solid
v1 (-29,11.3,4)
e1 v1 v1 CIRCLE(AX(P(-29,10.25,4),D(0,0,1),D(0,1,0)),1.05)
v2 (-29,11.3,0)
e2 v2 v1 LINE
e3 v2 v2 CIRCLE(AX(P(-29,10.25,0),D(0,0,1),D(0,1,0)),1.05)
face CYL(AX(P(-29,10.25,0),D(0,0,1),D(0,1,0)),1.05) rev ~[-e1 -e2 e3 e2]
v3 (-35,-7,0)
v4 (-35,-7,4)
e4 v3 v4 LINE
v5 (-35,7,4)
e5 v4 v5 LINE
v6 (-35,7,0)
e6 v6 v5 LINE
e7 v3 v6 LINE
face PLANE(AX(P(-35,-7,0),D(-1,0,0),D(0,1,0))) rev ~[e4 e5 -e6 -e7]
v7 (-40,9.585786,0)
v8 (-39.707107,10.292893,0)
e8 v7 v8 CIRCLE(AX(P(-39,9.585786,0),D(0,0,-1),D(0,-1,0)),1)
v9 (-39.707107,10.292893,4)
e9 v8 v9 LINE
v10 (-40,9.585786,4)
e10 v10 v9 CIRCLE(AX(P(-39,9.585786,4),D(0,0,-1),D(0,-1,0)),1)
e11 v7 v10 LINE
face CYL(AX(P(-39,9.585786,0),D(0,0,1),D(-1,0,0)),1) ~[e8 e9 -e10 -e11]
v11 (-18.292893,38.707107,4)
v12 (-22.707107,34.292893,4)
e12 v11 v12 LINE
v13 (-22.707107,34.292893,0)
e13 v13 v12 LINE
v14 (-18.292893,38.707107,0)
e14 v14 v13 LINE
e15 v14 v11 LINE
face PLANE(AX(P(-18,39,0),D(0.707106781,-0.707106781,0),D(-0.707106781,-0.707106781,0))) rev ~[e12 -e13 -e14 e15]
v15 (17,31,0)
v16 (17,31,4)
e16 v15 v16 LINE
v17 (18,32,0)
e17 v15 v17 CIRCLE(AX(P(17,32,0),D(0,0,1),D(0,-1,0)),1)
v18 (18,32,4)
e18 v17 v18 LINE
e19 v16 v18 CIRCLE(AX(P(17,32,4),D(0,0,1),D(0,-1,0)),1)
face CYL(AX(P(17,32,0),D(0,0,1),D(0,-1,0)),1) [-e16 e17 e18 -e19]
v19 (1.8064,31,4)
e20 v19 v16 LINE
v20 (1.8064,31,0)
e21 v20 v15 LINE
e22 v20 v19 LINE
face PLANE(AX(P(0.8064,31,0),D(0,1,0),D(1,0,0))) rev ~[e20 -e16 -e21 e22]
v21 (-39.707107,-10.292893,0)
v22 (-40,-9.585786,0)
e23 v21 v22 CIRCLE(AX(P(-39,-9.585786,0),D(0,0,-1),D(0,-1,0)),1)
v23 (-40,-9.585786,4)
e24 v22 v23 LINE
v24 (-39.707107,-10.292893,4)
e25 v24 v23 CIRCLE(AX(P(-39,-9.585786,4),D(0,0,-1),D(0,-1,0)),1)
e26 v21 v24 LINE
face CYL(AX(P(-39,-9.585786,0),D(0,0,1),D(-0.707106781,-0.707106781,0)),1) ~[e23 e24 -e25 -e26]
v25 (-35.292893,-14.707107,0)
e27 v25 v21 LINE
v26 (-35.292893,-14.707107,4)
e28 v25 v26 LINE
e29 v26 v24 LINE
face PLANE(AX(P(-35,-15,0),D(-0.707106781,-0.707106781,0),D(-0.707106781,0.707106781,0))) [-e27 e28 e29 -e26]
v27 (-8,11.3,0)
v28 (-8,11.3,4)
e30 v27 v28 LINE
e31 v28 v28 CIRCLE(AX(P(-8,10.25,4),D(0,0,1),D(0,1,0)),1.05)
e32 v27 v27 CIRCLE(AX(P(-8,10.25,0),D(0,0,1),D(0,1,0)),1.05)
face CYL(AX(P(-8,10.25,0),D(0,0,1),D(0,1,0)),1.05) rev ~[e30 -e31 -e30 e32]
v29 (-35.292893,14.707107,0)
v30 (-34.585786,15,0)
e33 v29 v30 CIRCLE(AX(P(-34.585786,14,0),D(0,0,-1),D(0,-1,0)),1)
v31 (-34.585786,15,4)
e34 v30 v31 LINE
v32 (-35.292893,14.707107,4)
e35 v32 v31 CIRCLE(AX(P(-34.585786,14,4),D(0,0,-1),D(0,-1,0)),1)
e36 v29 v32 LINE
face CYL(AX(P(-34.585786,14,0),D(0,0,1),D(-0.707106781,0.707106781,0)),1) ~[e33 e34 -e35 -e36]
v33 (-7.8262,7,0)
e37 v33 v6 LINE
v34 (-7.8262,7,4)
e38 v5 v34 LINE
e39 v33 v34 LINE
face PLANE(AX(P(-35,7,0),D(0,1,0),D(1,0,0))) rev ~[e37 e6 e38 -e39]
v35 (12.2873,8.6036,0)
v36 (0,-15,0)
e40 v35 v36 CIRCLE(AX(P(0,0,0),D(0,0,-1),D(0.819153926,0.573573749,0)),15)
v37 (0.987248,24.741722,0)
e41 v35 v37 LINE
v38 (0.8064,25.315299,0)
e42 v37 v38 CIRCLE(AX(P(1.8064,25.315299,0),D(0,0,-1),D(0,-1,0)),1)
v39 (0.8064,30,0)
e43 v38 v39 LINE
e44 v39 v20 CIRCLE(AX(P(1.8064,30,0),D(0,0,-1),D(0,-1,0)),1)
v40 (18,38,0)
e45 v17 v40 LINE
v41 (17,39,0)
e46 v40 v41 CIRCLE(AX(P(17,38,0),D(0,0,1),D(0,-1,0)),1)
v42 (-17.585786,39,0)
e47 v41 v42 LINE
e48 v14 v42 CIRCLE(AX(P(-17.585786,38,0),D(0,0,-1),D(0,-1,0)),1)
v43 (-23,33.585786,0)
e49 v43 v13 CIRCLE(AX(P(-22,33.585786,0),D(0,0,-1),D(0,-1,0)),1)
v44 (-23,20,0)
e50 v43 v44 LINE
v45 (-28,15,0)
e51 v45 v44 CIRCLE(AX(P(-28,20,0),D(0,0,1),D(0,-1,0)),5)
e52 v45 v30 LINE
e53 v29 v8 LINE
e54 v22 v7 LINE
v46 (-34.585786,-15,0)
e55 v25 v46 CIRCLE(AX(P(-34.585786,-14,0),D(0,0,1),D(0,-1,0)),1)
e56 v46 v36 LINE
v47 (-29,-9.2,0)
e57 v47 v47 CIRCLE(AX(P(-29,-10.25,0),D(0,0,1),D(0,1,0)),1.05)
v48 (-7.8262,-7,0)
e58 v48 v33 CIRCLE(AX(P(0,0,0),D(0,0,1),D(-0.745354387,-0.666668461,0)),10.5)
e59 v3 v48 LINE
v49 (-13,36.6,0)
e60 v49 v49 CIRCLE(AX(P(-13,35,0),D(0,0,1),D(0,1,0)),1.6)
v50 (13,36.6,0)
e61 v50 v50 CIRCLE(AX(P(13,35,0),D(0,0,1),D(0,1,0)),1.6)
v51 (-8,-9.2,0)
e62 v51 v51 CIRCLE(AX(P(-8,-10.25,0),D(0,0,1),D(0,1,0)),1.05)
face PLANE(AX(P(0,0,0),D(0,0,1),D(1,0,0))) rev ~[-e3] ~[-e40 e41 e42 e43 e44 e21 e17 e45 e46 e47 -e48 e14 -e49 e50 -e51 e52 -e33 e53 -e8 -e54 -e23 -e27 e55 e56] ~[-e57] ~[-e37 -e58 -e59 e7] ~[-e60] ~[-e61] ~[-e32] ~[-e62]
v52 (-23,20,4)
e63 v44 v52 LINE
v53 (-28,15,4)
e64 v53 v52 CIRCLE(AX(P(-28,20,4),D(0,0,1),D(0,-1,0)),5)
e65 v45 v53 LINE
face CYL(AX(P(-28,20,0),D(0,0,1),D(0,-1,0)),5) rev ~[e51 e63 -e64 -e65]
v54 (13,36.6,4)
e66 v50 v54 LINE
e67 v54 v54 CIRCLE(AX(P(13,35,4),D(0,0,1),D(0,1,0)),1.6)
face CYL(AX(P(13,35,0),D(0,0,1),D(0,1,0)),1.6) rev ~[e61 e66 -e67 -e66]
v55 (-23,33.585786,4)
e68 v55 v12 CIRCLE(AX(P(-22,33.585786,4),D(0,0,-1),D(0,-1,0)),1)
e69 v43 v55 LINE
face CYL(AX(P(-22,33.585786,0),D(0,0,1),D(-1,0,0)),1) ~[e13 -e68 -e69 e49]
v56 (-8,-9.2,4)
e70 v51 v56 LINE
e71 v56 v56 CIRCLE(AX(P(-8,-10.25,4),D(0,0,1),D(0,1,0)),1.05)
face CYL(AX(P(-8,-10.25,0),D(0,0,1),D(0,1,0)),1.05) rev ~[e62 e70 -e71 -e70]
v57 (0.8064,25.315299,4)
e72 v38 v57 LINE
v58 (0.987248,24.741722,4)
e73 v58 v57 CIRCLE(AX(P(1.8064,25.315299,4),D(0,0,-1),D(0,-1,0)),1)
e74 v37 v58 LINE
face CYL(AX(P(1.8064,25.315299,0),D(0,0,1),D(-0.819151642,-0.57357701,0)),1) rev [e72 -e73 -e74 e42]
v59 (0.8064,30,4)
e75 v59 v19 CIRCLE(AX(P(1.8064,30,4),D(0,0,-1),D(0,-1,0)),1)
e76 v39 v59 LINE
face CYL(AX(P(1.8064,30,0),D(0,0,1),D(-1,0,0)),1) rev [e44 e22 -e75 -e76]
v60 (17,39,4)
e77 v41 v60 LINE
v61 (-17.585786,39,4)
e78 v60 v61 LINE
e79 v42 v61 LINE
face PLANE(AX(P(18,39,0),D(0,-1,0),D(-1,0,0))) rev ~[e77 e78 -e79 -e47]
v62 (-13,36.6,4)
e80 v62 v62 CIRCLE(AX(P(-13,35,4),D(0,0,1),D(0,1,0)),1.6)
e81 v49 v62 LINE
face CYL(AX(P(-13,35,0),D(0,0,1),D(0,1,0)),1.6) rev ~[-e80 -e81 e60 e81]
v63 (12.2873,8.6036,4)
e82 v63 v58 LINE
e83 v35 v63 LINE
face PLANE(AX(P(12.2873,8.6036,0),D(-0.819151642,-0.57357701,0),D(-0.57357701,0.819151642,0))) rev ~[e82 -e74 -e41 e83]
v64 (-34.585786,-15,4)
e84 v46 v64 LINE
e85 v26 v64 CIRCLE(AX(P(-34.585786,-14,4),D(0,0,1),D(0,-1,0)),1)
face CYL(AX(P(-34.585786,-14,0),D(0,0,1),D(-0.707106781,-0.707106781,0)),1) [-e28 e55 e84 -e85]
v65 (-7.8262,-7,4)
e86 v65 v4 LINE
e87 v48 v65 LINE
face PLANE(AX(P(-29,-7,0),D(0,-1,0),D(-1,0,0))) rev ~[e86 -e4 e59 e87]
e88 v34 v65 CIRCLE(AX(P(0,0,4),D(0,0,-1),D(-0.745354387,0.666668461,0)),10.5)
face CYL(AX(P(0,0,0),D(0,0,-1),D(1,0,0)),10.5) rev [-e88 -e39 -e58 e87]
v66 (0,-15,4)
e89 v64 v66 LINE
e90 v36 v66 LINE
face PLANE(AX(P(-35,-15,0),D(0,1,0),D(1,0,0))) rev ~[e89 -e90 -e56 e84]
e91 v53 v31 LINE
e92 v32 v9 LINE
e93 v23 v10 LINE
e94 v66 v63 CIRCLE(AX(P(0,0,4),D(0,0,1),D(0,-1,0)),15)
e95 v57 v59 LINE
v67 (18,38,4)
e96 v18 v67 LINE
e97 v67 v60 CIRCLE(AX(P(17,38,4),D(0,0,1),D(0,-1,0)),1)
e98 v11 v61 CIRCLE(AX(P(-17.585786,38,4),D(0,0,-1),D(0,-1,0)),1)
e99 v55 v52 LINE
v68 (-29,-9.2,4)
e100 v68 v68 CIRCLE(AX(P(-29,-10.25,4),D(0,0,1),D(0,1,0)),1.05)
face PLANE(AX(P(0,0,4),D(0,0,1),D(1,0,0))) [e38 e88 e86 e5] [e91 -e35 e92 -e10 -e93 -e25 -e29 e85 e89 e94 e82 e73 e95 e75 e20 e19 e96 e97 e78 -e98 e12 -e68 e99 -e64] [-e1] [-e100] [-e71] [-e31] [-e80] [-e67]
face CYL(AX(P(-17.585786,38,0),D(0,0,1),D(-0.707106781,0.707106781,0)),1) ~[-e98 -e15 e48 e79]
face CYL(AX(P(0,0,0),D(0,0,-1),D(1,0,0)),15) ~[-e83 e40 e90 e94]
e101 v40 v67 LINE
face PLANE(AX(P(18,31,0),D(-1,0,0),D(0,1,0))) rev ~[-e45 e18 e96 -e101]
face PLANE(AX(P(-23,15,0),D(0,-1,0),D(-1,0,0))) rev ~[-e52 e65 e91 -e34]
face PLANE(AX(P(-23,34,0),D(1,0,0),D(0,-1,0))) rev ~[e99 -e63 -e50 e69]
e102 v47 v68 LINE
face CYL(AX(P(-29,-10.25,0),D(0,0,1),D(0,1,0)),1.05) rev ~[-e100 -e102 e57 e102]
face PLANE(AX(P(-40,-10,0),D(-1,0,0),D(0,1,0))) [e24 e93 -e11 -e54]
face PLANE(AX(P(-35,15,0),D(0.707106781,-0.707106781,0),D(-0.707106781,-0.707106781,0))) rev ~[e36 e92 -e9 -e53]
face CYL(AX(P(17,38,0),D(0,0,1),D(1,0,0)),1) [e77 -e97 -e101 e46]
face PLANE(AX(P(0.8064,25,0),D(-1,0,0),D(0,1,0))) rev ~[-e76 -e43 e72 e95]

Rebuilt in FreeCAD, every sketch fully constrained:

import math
import FreeCAD as App
import Part
import Sketcher

V = App.Vector
Q = App.Units.Quantity


def edges_at(feature, points):
    """Names of the edges that pass closest to the given points."""
    edges = feature.Shape.Edges
    near = lambda p: min(range(len(edges)), key=lambda i: edges[i].distToShape(Part.Vertex(*p))[0])
    return sorted({f"Edge{near(p) + 1}" for p in points})

doc = App.newDocument("Part")
body = doc.addObject("PartDesign::Body", "Body")

# Sketch on XY plane
sketch1 = body.newObject("Sketcher::SketchObject", "Sketch")
sketch1.AttachmentSupport = (doc.getObject("XY_Plane"), [""])
sketch1.MapMode = "FlatFace"
sketch1.addGeometry([
    Part.LineSegment(V(-40, -10, 0), V(-35, -15, 0)),  # 0
    Part.LineSegment(V(-35, -15, 0), V(0, -15, 0)),  # 1
    Part.ArcOfCircle(Part.Circle(V(0, 0, 0), V(0, 0, 1), 15), math.radians(-90), math.radians(34.999812)),  # 2
    Part.LineSegment(V(12.2873, 8.6036, 0), V(0.8064, 25, 0)),  # 3
    Part.LineSegment(V(0.8064, 25, 0), V(0.8064, 31, 0)),  # 4
    Part.LineSegment(V(0.8064, 31, 0), V(18, 31, 0)),  # 5
    Part.LineSegment(V(18, 31, 0), V(18, 39, 0)),  # 6
    Part.LineSegment(V(18, 39, 0), V(-18, 39, 0)),  # 7
    Part.LineSegment(V(-18, 39, 0), V(-23, 34, 0)),  # 8
    Part.LineSegment(V(-23, 34, 0), V(-23, 15, 0)),  # 9
    Part.LineSegment(V(-23, 15, 0), V(-35, 15, 0)),  # 10
    Part.LineSegment(V(-35, 15, 0), V(-40, 10, 0)),  # 11
    Part.LineSegment(V(-40, 10, 0), V(-40, -10, 0)),  # 12
    Part.LineSegment(V(-35, 7, 0), V(-7.8262, 7, 0)),  # 13
    Part.ArcOfCircle(Part.Circle(V(0, 0, 0), V(0, 0, 1), 10.5), math.radians(-138.189547), math.radians(138.189547)),  # 14
    Part.LineSegment(V(-7.8262, -7, 0), V(-35, -7, 0)),  # 15
    Part.LineSegment(V(-35, -7, 0), V(-35, 7, 0)),  # 16
], False)
sketch1.addConstraint([
    Sketcher.Constraint("Coincident", 0, 2, 1, 1),
    Sketcher.Constraint("Tangent", 1, 2, 2, 1),
    Sketcher.Constraint("Tangent", 2, 2, 3, 1),
    Sketcher.Constraint("Coincident", 3, 2, 4, 1),
    Sketcher.Constraint("Coincident", 4, 2, 5, 1),
    Sketcher.Constraint("Coincident", 5, 2, 6, 1),
    Sketcher.Constraint("Coincident", 6, 2, 7, 1),
    Sketcher.Constraint("Coincident", 7, 2, 8, 1),
    Sketcher.Constraint("Coincident", 8, 2, 9, 1),
    Sketcher.Constraint("Coincident", 9, 2, 10, 1),
    Sketcher.Constraint("Coincident", 10, 2, 11, 1),
    Sketcher.Constraint("Coincident", 11, 2, 12, 1),
    Sketcher.Constraint("Coincident", 12, 2, 0, 1),
    Sketcher.Constraint("Coincident", 13, 2, 14, 2),
    Sketcher.Constraint("Coincident", 14, 1, 15, 1),
    Sketcher.Constraint("Coincident", 15, 2, 16, 1),
    Sketcher.Constraint("Coincident", 16, 2, 13, 1),
    Sketcher.Constraint("Horizontal", 1),
    Sketcher.Constraint("Vertical", 4),
    Sketcher.Constraint("Horizontal", 5),
    Sketcher.Constraint("Vertical", 6),
    Sketcher.Constraint("Horizontal", 7),
    Sketcher.Constraint("Vertical", 9),
    Sketcher.Constraint("Horizontal", 10),
    Sketcher.Constraint("Vertical", 12),
    Sketcher.Constraint("Horizontal", 13),
    Sketcher.Constraint("Horizontal", 15),
    Sketcher.Constraint("Vertical", 16),
    Sketcher.Constraint("Coincident", 2, 3, -1, 1),
    Sketcher.Constraint("Coincident", 14, 3, -1, 1),
    Sketcher.Constraint("Symmetric", 0, 2, 10, 2, -1),
    Sketcher.Constraint("Perpendicular", 0, 8),
    Sketcher.Constraint("Parallel", 8, 11),
    Sketcher.Constraint("Vertical", 13, 2, 14, 1),
    Sketcher.Constraint("Vertical", 10, 2, 15, 2),
    Sketcher.Constraint("Equal", 0, 8),
    Sketcher.Constraint("Equal", 8, 11),
    Sketcher.Constraint("Radius", 2, 15.0),
    Sketcher.Constraint("Radius", 14, 10.5),
    Sketcher.Constraint("DistanceX", 1, 1, 1, 2, 35.0),
    Sketcher.Constraint("DistanceY", 4, 1, 4, 2, 6.0),
    Sketcher.Constraint("DistanceY", 6, 1, 6, 2, 8.0),
    Sketcher.Constraint("DistanceY", 12, 2, 12, 1, 20.0),
    Sketcher.Constraint("DistanceY", 16, 1, 16, 2, 14.0),
    Sketcher.Constraint("DistanceY", -1, 1, 3, 2, 25.0),
    Sketcher.Constraint("DistanceX", -1, 1, 5, 2, 18.0),
    Sketcher.Constraint("DistanceX", 7, 2, -1, 1, 18.0),
    Sketcher.Constraint("Angle", 3, Q("125 deg")),
])
pad1 = body.newObject("PartDesign::Pad", "Pad")
pad1.Profile = sketch1
pad1.Length = 4

# Sketch on XY plane
sketch2 = body.newObject("Sketcher::SketchObject", "Sketch001")
sketch2.AttachmentSupport = (doc.getObject("XY_Plane"), [""])
sketch2.MapMode = "FlatFace"
sketch2.addGeometry([
    Part.Circle(V(-8, 10.25, 0), V(0, 0, 1), 1.05),
    Part.Circle(V(-8, -10.25, 0), V(0, 0, 1), 1.05),
    Part.Circle(V(-29, -10.25, 0), V(0, 0, 1), 1.05),
    Part.Circle(V(-29, 10.25, 0), V(0, 0, 1), 1.05),
], False)
sketch2.addConstraint([
    Sketcher.Constraint("Equal", 0, 1),
    Sketcher.Constraint("Equal", 1, 2),
    Sketcher.Constraint("Equal", 2, 3),
    Sketcher.Constraint("Symmetric", 0, 3, 1, 3, -1),
    Sketcher.Constraint("Symmetric", 2, 3, 3, 3, -1),
    Sketcher.Constraint("Horizontal", 1, 3, 2, 3),
    Sketcher.Constraint("Diameter", 0, 2.1),
    Sketcher.Constraint("DistanceX", 0, 3, -1, 1, 8.0),
    Sketcher.Constraint("DistanceX", 2, 3, -1, 1, 29.0),
    Sketcher.Constraint("DistanceY", 1, 3, 0, 3, 20.5),
])
doc.recompute()
hole = body.newObject("PartDesign::Hole", "Hole")
hole.Profile = sketch2
hole.ThreadType = "None"
hole.Diameter = 2.1
hole.DepthType = "Dimension"
hole.Depth = 10
hole.DrillPoint = "Angled"
hole.DrillPointAngle = 118
hole.Reversed = True

# Sketch on XY plane
sketch3 = body.newObject("Sketcher::SketchObject", "Sketch002")
sketch3.AttachmentSupport = (doc.getObject("XY_Plane"), [""])
sketch3.MapMode = "FlatFace"
sketch3.addGeometry([
    Part.Circle(V(-13, 35, 0), V(0, 0, 1), 1.6),
    Part.Circle(V(13, 35, 0), V(0, 0, 1), 1.6),
], False)
sketch3.addConstraint([
    Sketcher.Constraint("Equal", 0, 1),
    Sketcher.Constraint("Symmetric", 0, 3, 1, 3, -2),
    Sketcher.Constraint("Diameter", 0, 3.2),
    Sketcher.Constraint("DistanceX", 0, 3, -1, 1, 13.0),
    Sketcher.Constraint("DistanceY", -1, 1, 0, 3, 35.0),
])
doc.recompute()
hole2 = body.newObject("PartDesign::Hole", "Hole001")
hole2.Profile = sketch3
hole2.ThreadType = "None"
hole2.Diameter = 3.2
hole2.DepthType = "Dimension"
hole2.Depth = 10
hole2.DrillPoint = "Angled"
hole2.DrillPointAngle = 118
hole2.Reversed = True
doc.recompute()

fillet = body.newObject("PartDesign::Fillet", "Fillet")
fillet.Base = (hole2, edges_at(hole2, [
    (-35, -15, 2),
    (-40, -10, 2),
    (-40, 10, 2),
    (-35, 15, 2),
    (-23, 34, 2),
    (-18, 39, 2),
    (18, 39, 2),
    (18, 31, 2),
    (0.806, 25, 2),
    (0.806, 31, 2),
]))
fillet.Radius = 1
doc.recompute()

fillet2 = body.newObject("PartDesign::Fillet", "Fillet001")
fillet2.Base = (fillet, edges_at(fillet, [(-23, 15, 2)]))
fillet2.Radius = 5

doc.recompute()
